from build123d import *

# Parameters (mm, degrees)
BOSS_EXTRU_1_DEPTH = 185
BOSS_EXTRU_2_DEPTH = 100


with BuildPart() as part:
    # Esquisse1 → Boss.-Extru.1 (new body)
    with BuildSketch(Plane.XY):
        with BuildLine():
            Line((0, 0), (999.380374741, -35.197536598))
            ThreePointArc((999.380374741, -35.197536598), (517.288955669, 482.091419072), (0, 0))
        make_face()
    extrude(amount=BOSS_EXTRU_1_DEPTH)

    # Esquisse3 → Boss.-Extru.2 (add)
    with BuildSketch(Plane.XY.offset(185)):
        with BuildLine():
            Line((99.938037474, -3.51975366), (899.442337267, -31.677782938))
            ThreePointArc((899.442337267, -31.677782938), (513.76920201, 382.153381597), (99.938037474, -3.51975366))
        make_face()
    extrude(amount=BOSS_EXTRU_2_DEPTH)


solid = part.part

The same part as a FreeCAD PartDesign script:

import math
import FreeCAD as App
import Part
import Sketcher
Q = App.Units.Quantity

doc = App.newDocument("Part")
body = doc.addObject("PartDesign::Body", "Body")

sketch1 = body.newObject("Sketcher::SketchObject", "Sketch")
sketch1.AttachmentSupport = (doc.getObject("XY_Plane"), [""])
sketch1.MapMode = "FlatFace"
sketch1.addGeometry([
    Part.LineSegment(App.Vector(0, 0, 0), App.Vector(999.380375, -35.197537, 0)),
    Part.ArcOfCircle(Part.Circle(App.Vector(499.690187, -17.598768, 0), App.Vector(0, 0, 1), 500), math.radians(-2.017087), math.radians(177.982913)),
], False)
sketch1.addConstraint([
    Sketcher.Constraint("Coincident", 0, 1, 1, 2),
    Sketcher.Constraint("Coincident", 1, 1, 0, 2),
    Sketcher.Constraint("Coincident", 0, 1, -1, 1),
    Sketcher.Constraint("Radius", 1, Q("500 mm")),
    Sketcher.Constraint("DistanceY", 1, 3, -1, 1, Q("17.598768 mm")),
    Sketcher.Constraint("Angle", 0, Q("-2.017087 deg")),
])
pad1 = body.newObject("PartDesign::Pad", "Pad")
pad1.Profile = sketch1
pad1.Length = 185

sketch2 = body.newObject("Sketcher::SketchObject", "Sketch001")
sketch2.AttachmentSupport = (doc.getObject("XY_Plane"), [""])
sketch2.MapMode = "FlatFace"
sketch2.AttachmentOffset = App.Placement(App.Vector(0, 0, 185), App.Rotation())
sketch2.addGeometry([
    Part.LineSegment(App.Vector(99.938037, -3.519754, 0), App.Vector(899.442337, -31.677783, 0)),
    Part.ArcOfCircle(Part.Circle(App.Vector(499.690187, -17.598768, 0), App.Vector(0, 0, 1), 400), math.radians(-2.017087), math.radians(177.982913)),
], False)
sketch2.addConstraint([
    Sketcher.Constraint("Coincident", 0, 1, 1, 2),
    Sketcher.Constraint("Coincident", 1, 1, 0, 2),
    Sketcher.Constraint("Radius", 1, Q("400 mm")),
    Sketcher.Constraint("DistanceX", 0, 1, 1, 1, Q("799.5043 mm")),
    Sketcher.Constraint("DistanceY", 1, 3, -1, 1, Q("17.598768 mm")),
    Sketcher.Constraint("DistanceX", 0, 1, 1, 3, Q("399.75215 mm")),
    Sketcher.Constraint("DistanceX", -1, 1, 1, 3, Q("499.690187 mm")),
])
pad2 = body.newObject("PartDesign::Pad", "Pad001")
pad2.Profile = sketch2
pad2.Length = 100

doc.recompute()
